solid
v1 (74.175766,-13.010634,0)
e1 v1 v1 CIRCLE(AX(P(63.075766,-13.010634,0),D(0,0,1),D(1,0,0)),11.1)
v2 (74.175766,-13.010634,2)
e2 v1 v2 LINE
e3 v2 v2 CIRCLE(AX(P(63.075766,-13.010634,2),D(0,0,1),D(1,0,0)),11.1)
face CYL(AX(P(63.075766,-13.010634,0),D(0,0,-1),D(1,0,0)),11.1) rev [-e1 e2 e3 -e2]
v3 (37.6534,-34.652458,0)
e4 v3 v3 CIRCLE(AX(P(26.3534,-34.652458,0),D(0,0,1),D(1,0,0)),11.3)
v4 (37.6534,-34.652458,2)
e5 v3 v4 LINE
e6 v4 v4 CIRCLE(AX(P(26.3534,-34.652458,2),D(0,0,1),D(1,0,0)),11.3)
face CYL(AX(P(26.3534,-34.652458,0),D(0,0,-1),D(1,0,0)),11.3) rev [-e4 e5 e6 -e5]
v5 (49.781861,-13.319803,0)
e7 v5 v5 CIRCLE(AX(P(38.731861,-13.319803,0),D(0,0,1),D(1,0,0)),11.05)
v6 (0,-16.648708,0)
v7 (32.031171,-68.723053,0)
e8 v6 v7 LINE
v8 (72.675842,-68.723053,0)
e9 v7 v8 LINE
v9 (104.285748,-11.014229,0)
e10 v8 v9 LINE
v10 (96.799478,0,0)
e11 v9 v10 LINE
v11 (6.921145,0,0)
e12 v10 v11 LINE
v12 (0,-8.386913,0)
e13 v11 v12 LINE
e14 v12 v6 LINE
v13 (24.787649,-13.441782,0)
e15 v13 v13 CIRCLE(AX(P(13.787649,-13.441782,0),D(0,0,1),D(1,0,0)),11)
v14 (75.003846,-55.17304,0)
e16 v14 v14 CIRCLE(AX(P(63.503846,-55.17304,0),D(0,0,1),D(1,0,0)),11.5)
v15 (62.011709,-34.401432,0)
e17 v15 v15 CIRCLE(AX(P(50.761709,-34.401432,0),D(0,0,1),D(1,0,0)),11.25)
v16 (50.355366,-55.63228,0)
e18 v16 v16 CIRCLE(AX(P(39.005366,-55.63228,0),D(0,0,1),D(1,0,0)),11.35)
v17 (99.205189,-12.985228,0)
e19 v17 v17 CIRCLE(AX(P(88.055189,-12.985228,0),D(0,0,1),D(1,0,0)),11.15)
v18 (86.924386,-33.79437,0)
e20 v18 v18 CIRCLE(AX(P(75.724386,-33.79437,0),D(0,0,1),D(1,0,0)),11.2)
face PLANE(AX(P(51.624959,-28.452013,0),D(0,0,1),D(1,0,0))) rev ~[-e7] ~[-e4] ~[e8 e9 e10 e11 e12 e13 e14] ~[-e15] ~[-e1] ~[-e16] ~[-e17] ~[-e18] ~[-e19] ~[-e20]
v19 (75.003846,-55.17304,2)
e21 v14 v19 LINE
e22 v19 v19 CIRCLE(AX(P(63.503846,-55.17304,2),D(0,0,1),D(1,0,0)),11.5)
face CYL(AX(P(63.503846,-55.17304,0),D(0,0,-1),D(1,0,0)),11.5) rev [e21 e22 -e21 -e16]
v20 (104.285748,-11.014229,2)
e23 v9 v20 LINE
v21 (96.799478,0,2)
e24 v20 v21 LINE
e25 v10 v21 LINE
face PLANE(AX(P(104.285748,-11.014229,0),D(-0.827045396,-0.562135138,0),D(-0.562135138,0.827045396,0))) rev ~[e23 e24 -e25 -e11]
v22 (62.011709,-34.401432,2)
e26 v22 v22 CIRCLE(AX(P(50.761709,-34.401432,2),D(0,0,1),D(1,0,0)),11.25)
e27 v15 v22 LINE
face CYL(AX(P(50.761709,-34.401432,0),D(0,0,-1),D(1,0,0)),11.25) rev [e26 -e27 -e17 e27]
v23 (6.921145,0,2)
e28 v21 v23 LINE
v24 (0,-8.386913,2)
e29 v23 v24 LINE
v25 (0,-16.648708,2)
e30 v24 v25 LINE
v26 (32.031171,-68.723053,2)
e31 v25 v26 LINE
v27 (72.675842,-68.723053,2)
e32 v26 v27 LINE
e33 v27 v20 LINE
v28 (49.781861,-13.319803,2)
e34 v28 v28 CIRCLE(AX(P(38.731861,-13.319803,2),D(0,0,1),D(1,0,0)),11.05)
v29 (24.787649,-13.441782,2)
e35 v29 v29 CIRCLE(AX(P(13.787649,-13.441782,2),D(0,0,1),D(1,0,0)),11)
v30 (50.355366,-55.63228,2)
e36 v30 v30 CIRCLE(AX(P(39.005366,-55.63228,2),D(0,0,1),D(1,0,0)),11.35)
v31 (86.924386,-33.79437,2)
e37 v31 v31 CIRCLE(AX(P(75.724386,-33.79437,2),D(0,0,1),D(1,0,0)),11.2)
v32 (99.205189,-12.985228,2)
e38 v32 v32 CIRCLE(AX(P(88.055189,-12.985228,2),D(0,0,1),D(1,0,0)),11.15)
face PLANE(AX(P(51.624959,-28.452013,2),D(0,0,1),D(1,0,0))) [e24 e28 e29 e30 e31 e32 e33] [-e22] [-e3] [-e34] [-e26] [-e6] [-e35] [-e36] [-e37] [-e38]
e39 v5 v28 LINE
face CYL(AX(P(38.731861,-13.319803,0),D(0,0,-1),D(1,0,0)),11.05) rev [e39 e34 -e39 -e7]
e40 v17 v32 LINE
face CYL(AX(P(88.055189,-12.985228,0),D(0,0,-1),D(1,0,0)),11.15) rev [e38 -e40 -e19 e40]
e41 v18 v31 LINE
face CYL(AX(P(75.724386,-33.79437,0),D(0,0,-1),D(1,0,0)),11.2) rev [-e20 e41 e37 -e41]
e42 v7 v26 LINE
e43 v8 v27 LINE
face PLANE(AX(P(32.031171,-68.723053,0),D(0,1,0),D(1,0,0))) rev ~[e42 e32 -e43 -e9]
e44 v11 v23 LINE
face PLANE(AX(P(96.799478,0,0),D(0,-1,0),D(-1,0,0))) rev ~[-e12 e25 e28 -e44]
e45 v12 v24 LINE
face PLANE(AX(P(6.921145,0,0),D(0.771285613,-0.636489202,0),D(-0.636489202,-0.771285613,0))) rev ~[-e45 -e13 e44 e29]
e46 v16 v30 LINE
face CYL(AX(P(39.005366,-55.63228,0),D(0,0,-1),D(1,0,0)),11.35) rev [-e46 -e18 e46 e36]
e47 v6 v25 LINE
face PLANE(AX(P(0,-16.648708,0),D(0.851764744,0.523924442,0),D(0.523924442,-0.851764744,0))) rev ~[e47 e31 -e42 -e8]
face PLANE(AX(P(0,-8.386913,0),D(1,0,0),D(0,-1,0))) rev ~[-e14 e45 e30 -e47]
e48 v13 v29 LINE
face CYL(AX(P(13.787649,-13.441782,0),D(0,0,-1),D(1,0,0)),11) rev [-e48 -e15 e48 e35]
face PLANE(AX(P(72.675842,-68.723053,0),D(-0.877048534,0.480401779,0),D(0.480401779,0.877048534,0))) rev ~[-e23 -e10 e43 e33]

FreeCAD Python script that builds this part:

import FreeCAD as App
import Part
import Sketcher
Q = App.Units.Quantity

doc = App.newDocument("Part")
body = doc.addObject("PartDesign::Body", "Body")

# Sketch on XY plane
sketch1 = doc.addObject("Sketcher::SketchObject", "Sketch")
body.addObject(sketch1)
sketch1.AttachmentSupport = (doc.XY_Plane, [""])
sketch1.MapMode = "FlatFace"
sketch1.addGeometry([
    Part.LineSegment(App.Vector(96.799478, 0, 0), App.Vector(6.921145, 0, 0)),  # 0
    Part.LineSegment(App.Vector(6.921145, 0, 0), App.Vector(0, -8.386913, 0)),  # 1
    Part.LineSegment(App.Vector(0, -8.386913, 0), App.Vector(0, -16.648708, 0)),  # 2
    Part.LineSegment(App.Vector(0, -16.648708, 0), App.Vector(32.031171, -68.723053, 0)),  # 3
    Part.LineSegment(App.Vector(32.031171, -68.723053, 0), App.Vector(72.675842, -68.723053, 0)),  # 4
    Part.LineSegment(App.Vector(72.675842, -68.723053, 0), App.Vector(104.285748, -11.014229, 0)),  # 5
    Part.LineSegment(App.Vector(104.285748, -11.014229, 0), App.Vector(96.799478, 0, 0)),  # 6
    Part.Circle(App.Vector(39.005366, -55.63228, 0), App.Vector(0, 0, 1), 11.35),  # 7
    Part.Circle(App.Vector(26.3534, -34.652458, 0), App.Vector(0, 0, 1), 11.3),  # 8
    Part.Circle(App.Vector(63.503846, -55.17304, 0), App.Vector(0, 0, 1), 11.5),  # 9
    Part.Circle(App.Vector(50.761709, -34.401432, 0), App.Vector(0, 0, 1), 11.25),  # 10
    Part.Circle(App.Vector(13.787649, -13.441782, 0), App.Vector(0, 0, 1), 11),  # 11
    Part.Circle(App.Vector(38.731861, -13.319803, 0), App.Vector(0, 0, 1), 11.05),  # 12
    Part.Circle(App.Vector(75.724386, -33.79437, 0), App.Vector(0, 0, 1), 11.2),  # 13
    Part.Circle(App.Vector(63.075766, -13.010634, 0), App.Vector(0, 0, 1), 11.1),  # 14
    Part.Circle(App.Vector(88.055189, -12.985228, 0), App.Vector(0, 0, 1), 11.15),  # 15
], False)
sketch1.addConstraint([
    Sketcher.Constraint("Coincident", 0, 2, 1, 1),
    Sketcher.Constraint("Coincident", 1, 2, 2, 1),
    Sketcher.Constraint("Coincident", 2, 2, 3, 1),
    Sketcher.Constraint("Coincident", 3, 2, 4, 1),
    Sketcher.Constraint("Coincident", 4, 2, 5, 1),
    Sketcher.Constraint("Coincident", 5, 2, 6, 1),
    Sketcher.Constraint("Coincident", 6, 2, 0, 1),
    Sketcher.Constraint("Horizontal", 0),
    Sketcher.Constraint("Vertical", 2),
    Sketcher.Constraint("Horizontal", 4),
    Sketcher.Constraint("PointOnObject", 0, 2, -1),
    Sketcher.Constraint("PointOnObject", 1, 2, -2),
    Sketcher.Constraint("Diameter", 9, Q("23 mm")),
    Sketcher.Constraint("Diameter", 11, Q("22 mm")),
    Sketcher.Constraint("Diameter", 7, Q("22.7 mm")),
    Sketcher.Constraint("Diameter", 8, Q("22.6 mm")),
    Sketcher.Constraint("Diameter", 10, Q("22.5 mm")),
    Sketcher.Constraint("Diameter", 12, Q("22.1 mm")),
    Sketcher.Constraint("Diameter", 13, Q("22.4 mm")),
    Sketcher.Constraint("Diameter", 14, Q("22.2 mm")),
    Sketcher.Constraint("Diameter", 15, Q("22.3 mm")),
    Sketcher.Constraint("DistanceY", 15, 3, 5, 2, Q("1.970999 mm")),
    Sketcher.Constraint("DistanceX", 4, 1, 4, 2, Q("40.644671 mm")),
    Sketcher.Constraint("DistanceX", -1, 1, 8, 3, Q("26.3534 mm")),
    Sketcher.Constraint("DistanceY", 7, 3, 11, 3, Q("42.190498 mm")),
    Sketcher.Constraint("DistanceY", 10, 3, 14, 3, Q("21.390798 mm")),
    Sketcher.Constraint("DistanceX", 9, 3, 5, 2, Q("40.781902 mm")),
    Sketcher.Constraint("Distance", 1, Q("10.873939 mm")),
    Sketcher.Constraint("DistanceX", 0, 2, 0, 1, Q("89.878333 mm")),
    Sketcher.Constraint("DistanceY", 2, 2, 2, 1, Q("8.261795 mm")),
    Sketcher.Constraint("DistanceY", 7, 3, -1, 1, Q("55.63228 mm")),
    Sketcher.Constraint("DistanceY", 8, 3, -1, 1, Q("34.652458 mm")),
    Sketcher.Constraint("DistanceY", 9, 3, -1, 1, Q("55.17304 mm")),
    Sketcher.Constraint("DistanceX", -1, 1, 10, 3, Q("50.761709 mm")),
    Sketcher.Constraint("DistanceX", -1, 1, 11, 3, Q("13.787649 mm")),
    Sketcher.Constraint("DistanceX", -1, 1, 12, 3, Q("38.731861 mm")),
    Sketcher.Constraint("DistanceY", 13, 3, -1, 1, Q("33.79437 mm")),
    Sketcher.Constraint("DistanceX", -1, 1, 15, 3, Q("88.055189 mm")),
    Sketcher.Constraint("DistanceX", -1, 1, 3, 2, Q("32.031171 mm")),
    Sketcher.Constraint("DistanceX", -1, 1, 5, 2, Q("104.285748 mm")),
    Sketcher.Constraint("DistanceY", 5, 2, -1, 1, Q("11.014229 mm")),
    Sketcher.Constraint("DistanceX", 7, 3, 9, 3, Q("24.49848 mm")),
    Sketcher.Constraint("DistanceY", 7, 3, 10, 3, Q("21.230848 mm")),
    Sketcher.Constraint("DistanceY", 10, 3, 12, 3, Q("21.081629 mm")),
    Sketcher.Constraint("DistanceX", 9, 3, 13, 3, Q("12.22054 mm")),
    Sketcher.Constraint("DistanceX", 14, 3, 13, 3, Q("12.64862 mm")),
    Sketcher.Constraint("DistanceX", 0, 2, 14, 3, Q("56.154621 mm")),
    Sketcher.Constraint("DistanceY", 3, 2, 10, 3, Q("34.321621 mm")),
])
pad1 = doc.addObject("PartDesign::Pad", "Pad")
body.addObject(pad1)
pad1.Profile = sketch1
pad1.Length = 2

doc.recompute()
